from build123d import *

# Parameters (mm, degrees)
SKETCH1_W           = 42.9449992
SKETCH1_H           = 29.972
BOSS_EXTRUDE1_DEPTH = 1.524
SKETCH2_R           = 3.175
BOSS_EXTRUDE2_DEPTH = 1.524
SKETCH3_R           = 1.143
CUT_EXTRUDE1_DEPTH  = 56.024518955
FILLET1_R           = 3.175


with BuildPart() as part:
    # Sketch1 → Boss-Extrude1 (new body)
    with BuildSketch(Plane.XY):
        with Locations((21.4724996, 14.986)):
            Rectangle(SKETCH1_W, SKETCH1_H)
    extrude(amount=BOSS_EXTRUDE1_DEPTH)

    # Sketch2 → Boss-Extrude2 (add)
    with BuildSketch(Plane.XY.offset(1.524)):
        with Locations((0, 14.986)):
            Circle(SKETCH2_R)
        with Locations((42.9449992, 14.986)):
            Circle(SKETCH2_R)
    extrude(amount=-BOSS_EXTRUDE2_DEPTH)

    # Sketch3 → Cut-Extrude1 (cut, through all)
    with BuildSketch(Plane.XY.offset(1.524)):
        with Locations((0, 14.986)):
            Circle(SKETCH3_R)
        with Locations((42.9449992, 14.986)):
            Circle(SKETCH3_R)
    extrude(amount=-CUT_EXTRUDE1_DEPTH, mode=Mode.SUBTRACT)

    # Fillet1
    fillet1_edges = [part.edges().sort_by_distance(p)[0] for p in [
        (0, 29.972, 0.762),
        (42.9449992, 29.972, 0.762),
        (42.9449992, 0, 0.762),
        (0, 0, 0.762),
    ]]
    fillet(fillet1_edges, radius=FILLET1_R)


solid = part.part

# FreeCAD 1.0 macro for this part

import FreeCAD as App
import Part
import Sketcher
Q = App.Units.Quantity


def edges_at(feature, points):
    """Names of the edges that pass closest to the given points."""
    edges = feature.Shape.Edges
    near = lambda p: min(range(len(edges)), key=lambda i: edges[i].distToShape(Part.Vertex(*p))[0])
    return sorted({f"Edge{near(p) + 1}" for p in points})

doc = App.newDocument("Part")
body = doc.addObject("PartDesign::Body", "Body")

sketch1 = doc.addObject("Sketcher::SketchObject", "Sketch")
body.addObject(sketch1)
sketch1.AttachmentSupport = (doc.XY_Plane, [""])
sketch1.MapMode = "FlatFace"
sketch1.addGeometry([
    Part.LineSegment(App.Vector(0, 30, 0), App.Vector(0, 0, 0)),
    Part.LineSegment(App.Vector(0, 0, 0), App.Vector(43, 0, 0)),
    Part.LineSegment(App.Vector(43, 0, 0), App.Vector(43, 30, 0)),
    Part.LineSegment(App.Vector(43, 30, 0), App.Vector(0, 30, 0)),
], False)
sketch1.addConstraint([
    Sketcher.Constraint("Coincident", 0, 2, 1, 1),
    Sketcher.Constraint("Coincident", 1, 2, 2, 1),
    Sketcher.Constraint("Coincident", 2, 2, 3, 1),
    Sketcher.Constraint("Coincident", 3, 2, 0, 1),
    Sketcher.Constraint("Vertical", 0),
    Sketcher.Constraint("Horizontal", 1),
    Sketcher.Constraint("Vertical", 2),
    Sketcher.Constraint("Horizontal", 3),
    Sketcher.Constraint("Coincident", 0, 2, -1, 1),
    Sketcher.Constraint("DistanceY", 0, 2, 0, 1, Q("1.18 in")),
    Sketcher.Constraint("DistanceX", 1, 1, 1, 2, Q("42.944999 mm")),
])
pad1 = doc.addObject("PartDesign::Pad", "Pad")
body.addObject(pad1)
pad1.Profile = sketch1
pad1.Length = Q("0.06 in")

sketch2 = doc.addObject("Sketcher::SketchObject", "Sketch001")
body.addObject(sketch2)
sketch2.AttachmentSupport = (doc.XY_Plane, [""])
sketch2.MapMode = "FlatFace"
sketch2.AttachmentOffset = App.Placement(App.Vector(0, 0, 0.06 * 25.4), App.Rotation())
sketch2.addGeometry([
    Part.Circle(App.Vector(0, 15, 0), App.Vector(0, 0, 1), 3.2),
    Part.Circle(App.Vector(42.9, 15, 0), App.Vector(0, 0, 1), 3.2),
], False)
sketch2.addConstraint([
    Sketcher.Constraint("Equal", 0, 1),
    Sketcher.Constraint("PointOnObject", 0, 3, -2),
    Sketcher.Constraint("Horizontal", 0, 3, 1, 3),
    Sketcher.Constraint("Diameter", 0, Q("0.25 in")),
    Sketcher.Constraint("DistanceY", -1, 1, 0, 3, Q("0.59 in")),
    Sketcher.Constraint("DistanceX", -1, 1, 1, 3, Q("42.944999 mm")),
])
pad2 = doc.addObject("PartDesign::Pad", "Pad001")
body.addObject(pad2)
pad2.Profile = sketch2
pad2.Length = Q("0.06 in")
pad2.Reversed = True

sketch3 = doc.addObject("Sketcher::SketchObject", "Sketch002")
body.addObject(sketch3)
sketch3.AttachmentSupport = (doc.XY_Plane, [""])
sketch3.MapMode = "FlatFace"
sketch3.AttachmentOffset = App.Placement(App.Vector(0, 0, 0.06 * 25.4), App.Rotation())
sketch3.addGeometry([
    Part.Circle(App.Vector(0, 15, 0), App.Vector(0, 0, 1), 1.1),
    Part.Circle(App.Vector(42.9, 15, 0), App.Vector(0, 0, 1), 1.1),
], False)
sketch3.addConstraint([
    Sketcher.Constraint("Equal", 0, 1),
    Sketcher.Constraint("PointOnObject", 0, 3, -2),
    Sketcher.Constraint("Horizontal", 0, 3, 1, 3),
    Sketcher.Constraint("Diameter", 0, Q("0.09 in")),
    Sketcher.Constraint("DistanceY", -1, 1, 0, 3, Q("0.59 in")),
    Sketcher.Constraint("DistanceX", -1, 1, 1, 3, Q("42.944999 mm")),
])
pocket1 = doc.addObject("PartDesign::Pocket", "Pocket")
body.addObject(pocket1)
pocket1.Profile = sketch3
pocket1.Type = "ThroughAll"
doc.recompute()

fillet = doc.addObject("PartDesign::Fillet", "Fillet")
body.addObject(fillet)
fillet.Base = (pocket1, edges_at(pocket1, [
    (0, 29.972, 0.762),
    (42.945, 29.972, 0.762),
    (42.945, 0, 0.762),
    (0, 0, 0.762),
]))
fillet.Radius = Q("0.125 in")

doc.recompute()
